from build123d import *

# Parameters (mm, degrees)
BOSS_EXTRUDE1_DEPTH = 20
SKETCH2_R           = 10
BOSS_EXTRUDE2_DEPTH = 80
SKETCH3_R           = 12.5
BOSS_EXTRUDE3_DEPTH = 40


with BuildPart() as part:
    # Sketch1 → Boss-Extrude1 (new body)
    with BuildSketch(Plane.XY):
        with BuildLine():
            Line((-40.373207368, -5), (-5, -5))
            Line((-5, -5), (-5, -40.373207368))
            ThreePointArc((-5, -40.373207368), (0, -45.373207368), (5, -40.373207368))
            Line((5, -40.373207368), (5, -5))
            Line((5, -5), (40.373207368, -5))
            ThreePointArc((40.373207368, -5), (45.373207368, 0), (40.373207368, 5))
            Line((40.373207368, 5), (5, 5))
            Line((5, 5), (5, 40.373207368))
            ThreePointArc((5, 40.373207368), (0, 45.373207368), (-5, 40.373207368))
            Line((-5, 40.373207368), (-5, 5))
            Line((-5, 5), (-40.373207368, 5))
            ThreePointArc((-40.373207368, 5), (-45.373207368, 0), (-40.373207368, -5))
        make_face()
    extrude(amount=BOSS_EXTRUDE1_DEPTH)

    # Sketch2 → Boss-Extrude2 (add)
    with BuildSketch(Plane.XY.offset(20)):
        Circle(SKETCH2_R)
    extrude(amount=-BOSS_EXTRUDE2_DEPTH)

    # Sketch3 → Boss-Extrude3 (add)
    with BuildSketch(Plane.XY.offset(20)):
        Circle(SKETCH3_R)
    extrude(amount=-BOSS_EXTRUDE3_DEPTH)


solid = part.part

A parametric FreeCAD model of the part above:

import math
import FreeCAD as App
import Part
import Sketcher

doc = App.newDocument("Part")
body = doc.addObject("PartDesign::Body", "Body")

# Sketch on XY plane
sketch1 = body.newObject("Sketcher::SketchObject", "Sketch")
sketch1.AttachmentSupport = (doc.getObject("XY_Plane"), [""])
sketch1.MapMode = "FlatFace"
sketch1.addGeometry(Part.LineSegment(App.Vector(-40, -5, 0), App.Vector(-5, -5, 0)), False)
sketch1.addGeometry(Part.LineSegment(App.Vector(-5, -5, 0), App.Vector(-5, -40, 0)), False)
sketch1.addGeometry(Part.ArcOfCircle(Part.Circle(App.Vector(0, -40, 0), App.Vector(0, 0, 1), 5), math.radians(180), math.radians(360)), False)
sketch1.addGeometry(Part.LineSegment(App.Vector(5, -40, 0), App.Vector(5, -5, 0)), False)
sketch1.addGeometry(Part.LineSegment(App.Vector(5, -5, 0), App.Vector(40, -5, 0)), False)
sketch1.addGeometry(Part.ArcOfCircle(Part.Circle(App.Vector(40, 0, 0), App.Vector(0, 0, 1), 5), math.radians(-90), math.radians(90)), False)
sketch1.addGeometry(Part.LineSegment(App.Vector(40, 5, 0), App.Vector(5, 5, 0)), False)
sketch1.addGeometry(Part.LineSegment(App.Vector(5, 5, 0), App.Vector(5, 40, 0)), False)
sketch1.addGeometry(Part.ArcOfCircle(Part.Circle(App.Vector(0, 40, 0), App.Vector(0, 0, 1), 5), math.radians(0), math.radians(180)), False)
sketch1.addGeometry(Part.LineSegment(App.Vector(-5, 40, 0), App.Vector(-5, 5, 0)), False)
sketch1.addGeometry(Part.LineSegment(App.Vector(-5, 5, 0), App.Vector(-40, 5, 0)), False)
sketch1.addGeometry(Part.ArcOfCircle(Part.Circle(App.Vector(-40, 0, 0), App.Vector(0, 0, 1), 5), math.radians(90), math.radians(270)), False)
sketch1.addConstraint(Sketcher.Constraint("Coincident", 0, 2, 1, 1))
sketch1.addConstraint(Sketcher.Constraint("Tangent", 1, 2, 2, 1))
sketch1.addConstraint(Sketcher.Constraint("Tangent", 2, 2, 3, 1))
sketch1.addConstraint(Sketcher.Constraint("Coincident", 3, 2, 4, 1))
sketch1.addConstraint(Sketcher.Constraint("Tangent", 4, 2, 5, 1))
sketch1.addConstraint(Sketcher.Constraint("Tangent", 5, 2, 6, 1))
sketch1.addConstraint(Sketcher.Constraint("Coincident", 6, 2, 7, 1))
sketch1.addConstraint(Sketcher.Constraint("Tangent", 7, 2, 8, 1))
sketch1.addConstraint(Sketcher.Constraint("Tangent", 8, 2, 9, 1))
sketch1.addConstraint(Sketcher.Constraint("Coincident", 9, 2, 10, 1))
sketch1.addConstraint(Sketcher.Constraint("Tangent", 10, 2, 11, 1))
sketch1.addConstraint(Sketcher.Constraint("Tangent", 11, 2, 0, 1))
sketch1.addConstraint(Sketcher.Constraint("Horizontal", 0))
sketch1.addConstraint(Sketcher.Constraint("Vertical", 1))
sketch1.addConstraint(Sketcher.Constraint("Vertical", 3))
sketch1.addConstraint(Sketcher.Constraint("Horizontal", 4))
sketch1.addConstraint(Sketcher.Constraint("Horizontal", 6))
sketch1.addConstraint(Sketcher.Constraint("Vertical", 7))
sketch1.addConstraint(Sketcher.Constraint("Vertical", 9))
sketch1.addConstraint(Sketcher.Constraint("Horizontal", 10))
sketch1.addConstraint(Sketcher.Constraint("Equal", 2, 5))
sketch1.addConstraint(Sketcher.Constraint("Equal", 5, 8))
sketch1.addConstraint(Sketcher.Constraint("Equal", 8, 11))
sketch1.addConstraint(Sketcher.Constraint("Symmetric", 2, 3, 8, 3, -1, 1))
sketch1.addConstraint(Sketcher.Constraint("Symmetric", 5, 3, 11, 3, -1, 1))
sketch1.addConstraint(Sketcher.Constraint("Symmetric", 0, 2, 3, 2, -2))
sketch1.addConstraint(Sketcher.Constraint("Equal", 10, 1))
sketch1.addConstraint(Sketcher.Constraint("Radius", 2, 5.0))
sketch1.addConstraint(Sketcher.Constraint("DistanceX", 0, 1, 0, 2, 35.373207))
pad1 = body.newObject("PartDesign::Pad", "Pad")
pad1.Profile = sketch1
pad1.Length = 20

# Sketch on XY plane
sketch2 = body.newObject("Sketcher::SketchObject", "Sketch001")
sketch2.AttachmentSupport = (doc.getObject("XY_Plane"), [""])
sketch2.MapMode = "FlatFace"
sketch2.AttachmentOffset = App.Placement(App.Vector(0, 0, 20), App.Rotation())
sketch2.addGeometry(Part.Circle(App.Vector(0, 0, 0), App.Vector(0, 0, 1), 10), False)
sketch2.addConstraint(Sketcher.Constraint("Coincident", 0, 3, -1, 1))
sketch2.addConstraint(Sketcher.Constraint("Diameter", 0, 20.0))
pad2 = body.newObject("PartDesign::Pad", "Pad001")
pad2.Profile = sketch2
pad2.Length = 80
pad2.Reversed = True

# Sketch on XY plane
sketch3 = body.newObject("Sketcher::SketchObject", "Sketch002")
sketch3.AttachmentSupport = (doc.getObject("XY_Plane"), [""])
sketch3.MapMode = "FlatFace"
sketch3.AttachmentOffset = App.Placement(App.Vector(0, 0, 20), App.Rotation())
sketch3.addGeometry(Part.Circle(App.Vector(0, 0, 0), App.Vector(0, 0, 1), 12), False)
sketch3.addConstraint(Sketcher.Constraint("Coincident", 0, 3, -1, 1))
sketch3.addConstraint(Sketcher.Constraint("Diameter", 0, 25.0))
pad3 = body.newObject("PartDesign::Pad", "Pad002")
pad3.Profile = sketch3
pad3.Length = 40
pad3.Reversed = True

doc.recompute()
